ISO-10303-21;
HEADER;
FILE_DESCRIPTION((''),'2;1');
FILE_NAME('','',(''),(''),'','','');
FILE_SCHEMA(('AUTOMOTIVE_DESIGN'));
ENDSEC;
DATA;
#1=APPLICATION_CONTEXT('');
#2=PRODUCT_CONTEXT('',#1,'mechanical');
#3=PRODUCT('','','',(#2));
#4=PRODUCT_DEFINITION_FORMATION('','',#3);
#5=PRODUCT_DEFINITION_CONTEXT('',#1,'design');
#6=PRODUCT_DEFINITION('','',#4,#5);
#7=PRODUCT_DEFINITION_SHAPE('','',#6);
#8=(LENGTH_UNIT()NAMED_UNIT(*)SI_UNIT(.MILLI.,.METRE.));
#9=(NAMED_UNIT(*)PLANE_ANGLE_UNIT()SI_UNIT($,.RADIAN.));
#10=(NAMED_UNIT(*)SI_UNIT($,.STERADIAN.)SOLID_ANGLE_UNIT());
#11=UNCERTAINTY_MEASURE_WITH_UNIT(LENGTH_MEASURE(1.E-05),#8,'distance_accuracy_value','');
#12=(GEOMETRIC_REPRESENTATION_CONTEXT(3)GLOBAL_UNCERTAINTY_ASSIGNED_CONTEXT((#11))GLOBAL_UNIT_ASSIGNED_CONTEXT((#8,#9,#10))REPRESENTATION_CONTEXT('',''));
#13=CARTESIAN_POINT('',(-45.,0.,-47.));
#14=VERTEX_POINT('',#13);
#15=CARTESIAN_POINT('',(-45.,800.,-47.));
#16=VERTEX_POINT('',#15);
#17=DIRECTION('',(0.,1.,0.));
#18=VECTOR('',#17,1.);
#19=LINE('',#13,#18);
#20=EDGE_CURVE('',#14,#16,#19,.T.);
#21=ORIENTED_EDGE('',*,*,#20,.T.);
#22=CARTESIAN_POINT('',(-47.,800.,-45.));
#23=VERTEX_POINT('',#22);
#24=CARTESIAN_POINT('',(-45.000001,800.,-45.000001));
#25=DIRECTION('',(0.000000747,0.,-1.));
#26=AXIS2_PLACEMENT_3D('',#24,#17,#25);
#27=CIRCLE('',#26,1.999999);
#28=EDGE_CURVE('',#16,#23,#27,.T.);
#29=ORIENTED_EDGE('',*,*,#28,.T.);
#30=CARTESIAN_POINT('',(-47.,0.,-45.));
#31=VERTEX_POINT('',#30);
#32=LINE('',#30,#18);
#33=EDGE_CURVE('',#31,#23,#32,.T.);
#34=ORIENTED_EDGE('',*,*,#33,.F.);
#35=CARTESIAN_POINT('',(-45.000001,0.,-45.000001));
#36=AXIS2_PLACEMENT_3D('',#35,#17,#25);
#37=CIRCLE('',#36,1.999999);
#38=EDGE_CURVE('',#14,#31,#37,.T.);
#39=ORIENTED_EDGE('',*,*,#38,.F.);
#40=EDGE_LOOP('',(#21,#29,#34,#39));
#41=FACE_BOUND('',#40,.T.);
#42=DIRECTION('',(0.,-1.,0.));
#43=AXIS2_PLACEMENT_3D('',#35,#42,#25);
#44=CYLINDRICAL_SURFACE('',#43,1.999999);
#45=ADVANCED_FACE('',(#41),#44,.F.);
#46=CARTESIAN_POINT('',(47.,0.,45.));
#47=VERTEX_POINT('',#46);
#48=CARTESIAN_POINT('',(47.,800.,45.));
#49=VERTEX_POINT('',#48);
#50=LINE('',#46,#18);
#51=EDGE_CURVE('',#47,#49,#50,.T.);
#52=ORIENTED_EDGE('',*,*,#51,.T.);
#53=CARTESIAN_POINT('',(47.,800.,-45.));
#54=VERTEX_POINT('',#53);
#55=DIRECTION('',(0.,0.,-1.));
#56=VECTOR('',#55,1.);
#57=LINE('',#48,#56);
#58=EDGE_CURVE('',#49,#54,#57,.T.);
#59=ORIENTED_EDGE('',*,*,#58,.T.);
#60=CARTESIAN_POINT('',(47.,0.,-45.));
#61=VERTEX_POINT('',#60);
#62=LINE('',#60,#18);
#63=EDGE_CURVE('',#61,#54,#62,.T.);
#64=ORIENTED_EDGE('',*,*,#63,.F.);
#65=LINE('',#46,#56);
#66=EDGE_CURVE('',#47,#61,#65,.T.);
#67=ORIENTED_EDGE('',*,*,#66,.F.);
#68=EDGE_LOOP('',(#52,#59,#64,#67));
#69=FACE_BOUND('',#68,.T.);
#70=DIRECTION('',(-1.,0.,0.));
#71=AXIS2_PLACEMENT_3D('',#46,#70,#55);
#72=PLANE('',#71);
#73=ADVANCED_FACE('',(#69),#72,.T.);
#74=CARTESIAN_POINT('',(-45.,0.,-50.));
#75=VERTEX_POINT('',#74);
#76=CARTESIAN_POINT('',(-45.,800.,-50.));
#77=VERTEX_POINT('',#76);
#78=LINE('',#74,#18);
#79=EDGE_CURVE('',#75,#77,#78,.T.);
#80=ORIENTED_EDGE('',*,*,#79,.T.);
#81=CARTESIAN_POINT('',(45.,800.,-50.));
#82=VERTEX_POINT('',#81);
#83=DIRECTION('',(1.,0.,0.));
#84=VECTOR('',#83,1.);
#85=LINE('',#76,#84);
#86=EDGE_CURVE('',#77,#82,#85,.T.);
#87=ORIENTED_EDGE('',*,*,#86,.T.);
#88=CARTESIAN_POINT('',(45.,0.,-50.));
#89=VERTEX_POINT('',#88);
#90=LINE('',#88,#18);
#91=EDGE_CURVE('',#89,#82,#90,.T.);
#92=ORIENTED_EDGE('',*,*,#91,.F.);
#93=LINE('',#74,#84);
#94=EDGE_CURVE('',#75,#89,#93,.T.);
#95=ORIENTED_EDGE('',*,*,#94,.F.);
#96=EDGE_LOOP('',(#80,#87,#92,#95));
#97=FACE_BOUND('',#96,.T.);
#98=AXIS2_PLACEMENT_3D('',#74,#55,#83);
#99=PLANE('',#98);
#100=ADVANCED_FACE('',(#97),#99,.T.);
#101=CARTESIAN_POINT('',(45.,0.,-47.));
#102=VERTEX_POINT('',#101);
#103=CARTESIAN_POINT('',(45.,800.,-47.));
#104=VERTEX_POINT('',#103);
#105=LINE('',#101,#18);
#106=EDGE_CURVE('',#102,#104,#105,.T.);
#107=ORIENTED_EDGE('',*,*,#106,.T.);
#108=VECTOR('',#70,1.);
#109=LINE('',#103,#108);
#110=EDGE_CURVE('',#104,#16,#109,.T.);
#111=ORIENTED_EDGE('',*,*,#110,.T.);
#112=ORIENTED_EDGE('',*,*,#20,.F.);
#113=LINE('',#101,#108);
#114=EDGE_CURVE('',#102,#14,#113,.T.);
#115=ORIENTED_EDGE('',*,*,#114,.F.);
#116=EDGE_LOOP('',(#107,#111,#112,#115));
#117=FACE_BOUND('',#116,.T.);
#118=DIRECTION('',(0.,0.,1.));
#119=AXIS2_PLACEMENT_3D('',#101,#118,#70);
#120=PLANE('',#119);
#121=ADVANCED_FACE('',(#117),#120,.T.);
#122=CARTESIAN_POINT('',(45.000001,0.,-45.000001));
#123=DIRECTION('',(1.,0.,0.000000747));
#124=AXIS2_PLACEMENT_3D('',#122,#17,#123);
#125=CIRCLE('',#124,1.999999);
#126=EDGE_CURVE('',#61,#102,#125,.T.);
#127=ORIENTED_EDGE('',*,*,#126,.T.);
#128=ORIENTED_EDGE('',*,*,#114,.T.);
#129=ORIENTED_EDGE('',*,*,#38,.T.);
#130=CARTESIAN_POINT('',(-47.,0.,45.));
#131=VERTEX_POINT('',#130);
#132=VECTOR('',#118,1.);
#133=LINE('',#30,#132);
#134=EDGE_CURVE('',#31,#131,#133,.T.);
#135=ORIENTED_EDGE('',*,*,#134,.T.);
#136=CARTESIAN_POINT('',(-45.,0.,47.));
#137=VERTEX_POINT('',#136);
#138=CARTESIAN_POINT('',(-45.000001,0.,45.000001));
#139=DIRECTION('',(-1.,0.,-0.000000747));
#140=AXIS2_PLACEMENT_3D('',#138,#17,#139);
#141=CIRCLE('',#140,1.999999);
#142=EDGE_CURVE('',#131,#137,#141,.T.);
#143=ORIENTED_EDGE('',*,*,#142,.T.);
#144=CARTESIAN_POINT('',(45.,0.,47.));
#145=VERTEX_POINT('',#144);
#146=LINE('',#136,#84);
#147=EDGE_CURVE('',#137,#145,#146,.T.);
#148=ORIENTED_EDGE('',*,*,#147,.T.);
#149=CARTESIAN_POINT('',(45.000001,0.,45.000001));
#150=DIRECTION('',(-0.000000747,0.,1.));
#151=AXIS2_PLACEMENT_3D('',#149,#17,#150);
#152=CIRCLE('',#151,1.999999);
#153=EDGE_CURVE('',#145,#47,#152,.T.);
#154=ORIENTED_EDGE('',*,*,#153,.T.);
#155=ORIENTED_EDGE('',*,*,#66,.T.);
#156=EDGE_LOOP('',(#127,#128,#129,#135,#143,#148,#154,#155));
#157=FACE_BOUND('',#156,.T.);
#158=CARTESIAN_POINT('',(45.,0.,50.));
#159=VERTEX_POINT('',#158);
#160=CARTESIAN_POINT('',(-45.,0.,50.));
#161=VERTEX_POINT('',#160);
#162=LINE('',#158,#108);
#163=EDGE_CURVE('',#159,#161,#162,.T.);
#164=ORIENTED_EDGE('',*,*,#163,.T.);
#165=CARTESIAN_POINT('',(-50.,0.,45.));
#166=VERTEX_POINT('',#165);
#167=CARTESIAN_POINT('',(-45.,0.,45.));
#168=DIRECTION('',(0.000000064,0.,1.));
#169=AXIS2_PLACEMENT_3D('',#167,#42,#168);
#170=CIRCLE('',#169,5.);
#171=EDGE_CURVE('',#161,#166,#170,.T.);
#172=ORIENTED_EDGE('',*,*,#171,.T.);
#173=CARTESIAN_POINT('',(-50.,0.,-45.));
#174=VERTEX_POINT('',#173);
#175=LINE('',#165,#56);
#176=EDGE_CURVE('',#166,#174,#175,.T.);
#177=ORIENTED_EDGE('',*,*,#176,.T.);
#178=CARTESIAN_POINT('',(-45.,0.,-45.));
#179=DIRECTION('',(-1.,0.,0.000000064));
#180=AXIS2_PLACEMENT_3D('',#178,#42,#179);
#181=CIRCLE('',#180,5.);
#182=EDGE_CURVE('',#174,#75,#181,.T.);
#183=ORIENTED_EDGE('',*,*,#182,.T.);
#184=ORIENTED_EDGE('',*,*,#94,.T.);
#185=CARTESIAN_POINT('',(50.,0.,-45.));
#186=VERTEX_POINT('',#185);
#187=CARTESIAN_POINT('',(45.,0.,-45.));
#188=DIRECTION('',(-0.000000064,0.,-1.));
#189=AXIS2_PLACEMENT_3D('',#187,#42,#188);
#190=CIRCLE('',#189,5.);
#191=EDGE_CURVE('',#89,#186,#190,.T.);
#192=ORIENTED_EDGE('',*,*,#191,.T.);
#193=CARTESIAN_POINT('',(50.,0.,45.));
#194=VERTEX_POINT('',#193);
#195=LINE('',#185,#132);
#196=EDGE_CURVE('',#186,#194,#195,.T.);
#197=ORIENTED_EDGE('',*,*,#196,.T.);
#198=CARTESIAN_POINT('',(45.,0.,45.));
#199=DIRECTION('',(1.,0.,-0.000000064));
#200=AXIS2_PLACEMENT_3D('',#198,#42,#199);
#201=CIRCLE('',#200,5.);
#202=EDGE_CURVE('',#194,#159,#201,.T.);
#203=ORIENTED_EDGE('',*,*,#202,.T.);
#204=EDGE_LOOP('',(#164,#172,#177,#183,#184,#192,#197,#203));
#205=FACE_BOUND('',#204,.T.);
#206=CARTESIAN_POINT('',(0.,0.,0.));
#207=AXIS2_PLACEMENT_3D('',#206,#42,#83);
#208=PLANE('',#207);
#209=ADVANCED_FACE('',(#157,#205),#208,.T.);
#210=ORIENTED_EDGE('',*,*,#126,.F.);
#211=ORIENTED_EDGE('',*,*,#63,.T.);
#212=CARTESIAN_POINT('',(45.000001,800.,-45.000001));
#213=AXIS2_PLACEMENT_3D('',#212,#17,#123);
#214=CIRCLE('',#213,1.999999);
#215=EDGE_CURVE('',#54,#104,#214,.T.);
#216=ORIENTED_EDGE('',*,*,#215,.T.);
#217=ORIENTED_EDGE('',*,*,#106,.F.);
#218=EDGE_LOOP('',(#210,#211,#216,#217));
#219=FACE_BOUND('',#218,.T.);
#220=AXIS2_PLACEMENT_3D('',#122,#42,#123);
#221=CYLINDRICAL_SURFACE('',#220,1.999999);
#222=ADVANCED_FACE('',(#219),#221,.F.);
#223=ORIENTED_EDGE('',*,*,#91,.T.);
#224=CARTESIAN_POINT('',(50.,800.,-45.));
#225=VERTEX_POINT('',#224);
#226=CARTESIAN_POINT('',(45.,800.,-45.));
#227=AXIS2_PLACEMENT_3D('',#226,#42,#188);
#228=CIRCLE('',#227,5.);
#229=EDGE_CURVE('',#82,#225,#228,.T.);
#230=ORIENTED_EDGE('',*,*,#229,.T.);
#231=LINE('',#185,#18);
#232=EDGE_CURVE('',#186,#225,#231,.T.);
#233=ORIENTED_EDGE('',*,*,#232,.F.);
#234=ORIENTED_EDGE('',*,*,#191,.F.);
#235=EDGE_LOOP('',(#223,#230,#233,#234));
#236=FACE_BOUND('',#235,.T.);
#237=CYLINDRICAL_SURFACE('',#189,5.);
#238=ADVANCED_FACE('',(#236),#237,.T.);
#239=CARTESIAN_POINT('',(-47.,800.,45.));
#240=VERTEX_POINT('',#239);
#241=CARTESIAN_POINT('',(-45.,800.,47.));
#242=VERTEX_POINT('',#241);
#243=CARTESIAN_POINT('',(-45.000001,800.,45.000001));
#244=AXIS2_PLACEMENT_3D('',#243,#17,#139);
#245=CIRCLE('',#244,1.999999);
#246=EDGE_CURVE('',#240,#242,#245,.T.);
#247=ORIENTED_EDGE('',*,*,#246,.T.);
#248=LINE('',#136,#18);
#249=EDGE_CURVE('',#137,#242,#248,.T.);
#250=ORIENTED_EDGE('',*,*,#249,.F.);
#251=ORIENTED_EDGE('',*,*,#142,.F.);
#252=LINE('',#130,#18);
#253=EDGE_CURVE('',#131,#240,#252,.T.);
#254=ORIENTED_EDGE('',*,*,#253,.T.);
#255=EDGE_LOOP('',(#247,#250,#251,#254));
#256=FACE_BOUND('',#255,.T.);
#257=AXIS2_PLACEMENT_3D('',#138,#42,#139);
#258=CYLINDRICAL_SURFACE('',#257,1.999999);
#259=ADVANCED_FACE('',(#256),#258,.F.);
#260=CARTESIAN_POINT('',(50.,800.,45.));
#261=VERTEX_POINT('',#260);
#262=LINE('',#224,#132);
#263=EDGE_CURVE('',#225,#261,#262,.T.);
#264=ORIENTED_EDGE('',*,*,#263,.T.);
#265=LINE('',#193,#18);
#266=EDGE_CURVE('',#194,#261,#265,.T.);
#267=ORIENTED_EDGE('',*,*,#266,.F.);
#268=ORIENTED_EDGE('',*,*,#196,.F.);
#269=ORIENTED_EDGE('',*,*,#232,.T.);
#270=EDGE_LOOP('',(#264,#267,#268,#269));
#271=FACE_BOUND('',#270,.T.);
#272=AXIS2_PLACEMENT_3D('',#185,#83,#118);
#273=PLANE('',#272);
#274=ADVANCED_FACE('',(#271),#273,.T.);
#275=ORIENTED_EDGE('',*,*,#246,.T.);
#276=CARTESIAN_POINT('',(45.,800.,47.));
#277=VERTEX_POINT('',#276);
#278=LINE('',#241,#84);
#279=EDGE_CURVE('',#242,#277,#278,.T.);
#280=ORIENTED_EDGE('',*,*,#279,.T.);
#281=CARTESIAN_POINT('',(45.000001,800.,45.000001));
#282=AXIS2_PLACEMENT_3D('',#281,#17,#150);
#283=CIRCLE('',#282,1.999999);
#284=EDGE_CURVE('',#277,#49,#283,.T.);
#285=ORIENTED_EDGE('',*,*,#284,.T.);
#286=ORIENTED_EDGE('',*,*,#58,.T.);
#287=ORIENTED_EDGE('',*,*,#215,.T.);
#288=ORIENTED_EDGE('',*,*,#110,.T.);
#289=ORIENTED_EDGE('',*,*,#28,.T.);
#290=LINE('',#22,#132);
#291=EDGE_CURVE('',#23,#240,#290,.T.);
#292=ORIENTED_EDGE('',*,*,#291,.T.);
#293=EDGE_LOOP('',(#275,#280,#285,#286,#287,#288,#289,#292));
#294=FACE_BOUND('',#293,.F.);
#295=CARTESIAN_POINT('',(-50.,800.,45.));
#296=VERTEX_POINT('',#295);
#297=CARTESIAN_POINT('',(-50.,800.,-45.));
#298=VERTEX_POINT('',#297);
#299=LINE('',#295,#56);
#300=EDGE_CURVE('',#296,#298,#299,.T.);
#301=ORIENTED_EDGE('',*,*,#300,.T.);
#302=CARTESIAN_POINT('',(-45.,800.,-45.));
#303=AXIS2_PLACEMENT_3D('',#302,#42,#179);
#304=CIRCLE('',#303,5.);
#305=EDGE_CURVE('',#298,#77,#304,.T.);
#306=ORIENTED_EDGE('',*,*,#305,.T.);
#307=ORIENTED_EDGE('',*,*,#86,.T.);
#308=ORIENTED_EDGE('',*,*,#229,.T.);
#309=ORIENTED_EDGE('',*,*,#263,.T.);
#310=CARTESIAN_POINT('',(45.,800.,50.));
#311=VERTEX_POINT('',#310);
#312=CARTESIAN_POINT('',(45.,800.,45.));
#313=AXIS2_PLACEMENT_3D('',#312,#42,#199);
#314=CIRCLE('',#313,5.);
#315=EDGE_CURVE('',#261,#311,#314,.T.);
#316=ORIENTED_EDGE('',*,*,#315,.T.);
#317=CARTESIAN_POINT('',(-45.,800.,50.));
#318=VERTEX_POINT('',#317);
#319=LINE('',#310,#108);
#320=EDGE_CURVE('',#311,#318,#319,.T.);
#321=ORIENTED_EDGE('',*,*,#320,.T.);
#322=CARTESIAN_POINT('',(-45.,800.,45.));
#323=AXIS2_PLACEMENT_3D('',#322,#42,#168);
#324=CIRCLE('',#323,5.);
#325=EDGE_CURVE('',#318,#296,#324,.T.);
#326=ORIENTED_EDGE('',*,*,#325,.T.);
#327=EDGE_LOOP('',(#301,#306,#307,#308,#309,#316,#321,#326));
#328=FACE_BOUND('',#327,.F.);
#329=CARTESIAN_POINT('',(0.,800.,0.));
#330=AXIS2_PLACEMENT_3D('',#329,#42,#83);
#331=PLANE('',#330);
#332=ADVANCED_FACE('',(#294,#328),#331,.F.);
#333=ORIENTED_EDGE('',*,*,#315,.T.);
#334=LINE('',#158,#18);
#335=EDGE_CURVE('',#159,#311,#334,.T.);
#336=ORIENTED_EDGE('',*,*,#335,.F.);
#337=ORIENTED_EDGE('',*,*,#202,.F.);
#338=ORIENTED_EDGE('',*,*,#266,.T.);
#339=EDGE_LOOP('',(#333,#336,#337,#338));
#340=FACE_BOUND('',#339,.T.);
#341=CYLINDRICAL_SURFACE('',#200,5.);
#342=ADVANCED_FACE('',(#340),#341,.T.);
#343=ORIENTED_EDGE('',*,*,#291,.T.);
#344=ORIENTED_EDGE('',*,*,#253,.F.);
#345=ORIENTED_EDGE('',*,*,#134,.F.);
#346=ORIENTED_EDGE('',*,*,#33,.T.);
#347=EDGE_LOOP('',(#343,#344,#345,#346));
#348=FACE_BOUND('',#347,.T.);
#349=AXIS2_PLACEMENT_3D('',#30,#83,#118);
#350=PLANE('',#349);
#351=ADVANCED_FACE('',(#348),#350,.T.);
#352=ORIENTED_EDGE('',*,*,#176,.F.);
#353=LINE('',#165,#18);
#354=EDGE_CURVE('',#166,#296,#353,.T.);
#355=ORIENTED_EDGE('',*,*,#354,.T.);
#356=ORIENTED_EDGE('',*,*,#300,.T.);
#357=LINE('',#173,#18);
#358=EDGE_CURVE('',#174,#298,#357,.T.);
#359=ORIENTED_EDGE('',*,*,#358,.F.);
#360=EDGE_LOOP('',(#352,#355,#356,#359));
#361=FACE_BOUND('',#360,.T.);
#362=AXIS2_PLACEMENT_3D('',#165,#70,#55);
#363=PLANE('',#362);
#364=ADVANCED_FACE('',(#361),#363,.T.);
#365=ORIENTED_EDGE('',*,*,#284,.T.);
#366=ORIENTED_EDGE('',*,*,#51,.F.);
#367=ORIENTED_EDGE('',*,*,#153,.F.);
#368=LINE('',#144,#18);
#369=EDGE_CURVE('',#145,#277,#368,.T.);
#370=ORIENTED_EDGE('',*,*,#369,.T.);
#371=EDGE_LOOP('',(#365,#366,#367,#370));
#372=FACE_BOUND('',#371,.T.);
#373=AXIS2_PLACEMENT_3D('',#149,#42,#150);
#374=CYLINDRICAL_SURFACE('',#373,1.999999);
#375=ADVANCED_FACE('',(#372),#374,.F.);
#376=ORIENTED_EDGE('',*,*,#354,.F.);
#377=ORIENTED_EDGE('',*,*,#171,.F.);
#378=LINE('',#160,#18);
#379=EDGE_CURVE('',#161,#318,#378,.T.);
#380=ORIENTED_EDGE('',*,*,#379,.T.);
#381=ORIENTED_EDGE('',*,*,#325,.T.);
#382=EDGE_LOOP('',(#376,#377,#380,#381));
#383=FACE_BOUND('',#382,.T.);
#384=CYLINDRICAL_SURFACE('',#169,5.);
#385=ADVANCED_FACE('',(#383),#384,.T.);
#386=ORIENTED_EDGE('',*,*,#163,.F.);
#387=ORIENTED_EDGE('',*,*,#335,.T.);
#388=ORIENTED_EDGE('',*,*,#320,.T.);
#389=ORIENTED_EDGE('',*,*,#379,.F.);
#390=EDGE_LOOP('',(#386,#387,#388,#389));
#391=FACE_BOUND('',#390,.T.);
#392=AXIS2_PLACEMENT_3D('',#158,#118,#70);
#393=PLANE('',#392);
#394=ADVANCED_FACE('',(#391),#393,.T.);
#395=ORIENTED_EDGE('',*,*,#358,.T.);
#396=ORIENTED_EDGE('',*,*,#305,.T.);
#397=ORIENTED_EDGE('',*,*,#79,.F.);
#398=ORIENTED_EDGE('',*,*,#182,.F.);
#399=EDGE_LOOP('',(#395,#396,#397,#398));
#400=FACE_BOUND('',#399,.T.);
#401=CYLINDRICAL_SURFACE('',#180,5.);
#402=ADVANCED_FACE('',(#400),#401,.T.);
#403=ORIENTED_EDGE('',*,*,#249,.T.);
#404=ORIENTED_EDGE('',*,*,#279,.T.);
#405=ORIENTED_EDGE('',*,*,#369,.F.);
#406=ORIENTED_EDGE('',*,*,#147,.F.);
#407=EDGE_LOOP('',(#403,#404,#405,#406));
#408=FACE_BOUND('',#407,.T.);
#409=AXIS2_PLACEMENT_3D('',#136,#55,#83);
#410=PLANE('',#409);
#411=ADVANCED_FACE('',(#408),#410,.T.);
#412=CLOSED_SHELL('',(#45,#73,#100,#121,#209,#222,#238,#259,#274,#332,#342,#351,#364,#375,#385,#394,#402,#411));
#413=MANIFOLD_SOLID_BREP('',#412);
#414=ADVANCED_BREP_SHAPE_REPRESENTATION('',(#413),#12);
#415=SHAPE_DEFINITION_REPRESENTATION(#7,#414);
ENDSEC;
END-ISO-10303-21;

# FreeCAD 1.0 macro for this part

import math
import FreeCAD as App
import Part
import Sketcher
Q = App.Units.Quantity

doc = App.newDocument("Part")
params = doc.addObject("Spreadsheet::Sheet", "Params")
for row, (alias, value) in enumerate([
    ("sketch1_radius", "5 mm"),
    ("sketch1_radius2", "1.999999 mm"),
    ("sketch1_width", "90 mm"),
    ("pad1_length", "800 mm"),
], start=1):
    params.set(f"A{row}", alias)
    params.set(f"B{row}", "=" + value)
    params.setAlias(f"B{row}", alias)

body = doc.addObject("PartDesign::Body", "Body")

# Sketch on XZ plane
sketch1 = doc.addObject("Sketcher::SketchObject", "Sketch")
body.addObject(sketch1)
sketch1.AttachmentSupport = (doc.XZ_Plane, [""])
sketch1.MapMode = "FlatFace"
sketch1.addGeometry([
    Part.ArcOfCircle(Part.Circle(App.Vector(45, 45, 0), App.Vector(0, 0, 1), 5), math.radians(0), math.radians(90)),  # 0
    Part.LineSegment(App.Vector(45, 50, 0), App.Vector(-45, 50, 0)),  # 1
    Part.ArcOfCircle(Part.Circle(App.Vector(-45, 45, 0), App.Vector(0, 0, 1), 5), math.radians(90), math.radians(180)),  # 2
    Part.LineSegment(App.Vector(-50, 45, 0), App.Vector(-50, -45, 0)),  # 3
    Part.ArcOfCircle(Part.Circle(App.Vector(-45, -45, 0), App.Vector(0, 0, 1), 5), math.radians(180), math.radians(270)),  # 4
    Part.LineSegment(App.Vector(-45, -50, 0), App.Vector(45, -50, 0)),  # 5
    Part.ArcOfCircle(Part.Circle(App.Vector(45, -45, 0), App.Vector(0, 0, 1), 5), math.radians(-90), math.radians(0)),  # 6
    Part.LineSegment(App.Vector(50, -45, 0), App.Vector(50, 45, 0)),  # 7
    Part.LineSegment(App.Vector(-47, -45, 0), App.Vector(-47, 45, 0)),  # 8
    Part.ArcOfCircle(Part.Circle(App.Vector(-45, 45, 0), App.Vector(0, 0, 1), 2), math.radians(90), math.radians(180)),  # 9
    Part.LineSegment(App.Vector(-45, 47, 0), App.Vector(45, 47, 0)),  # 10
    Part.ArcOfCircle(Part.Circle(App.Vector(45, 45, 0), App.Vector(0, 0, 1), 2), math.radians(0), math.radians(90)),  # 11
    Part.LineSegment(App.Vector(47, 45, 0), App.Vector(47, -45, 0)),  # 12
    Part.ArcOfCircle(Part.Circle(App.Vector(45, -45, 0), App.Vector(0, 0, 1), 2), math.radians(-90), math.radians(0)),  # 13
    Part.LineSegment(App.Vector(45, -47, 0), App.Vector(-45, -47, 0)),  # 14
    Part.ArcOfCircle(Part.Circle(App.Vector(-45, -45, 0), App.Vector(0, 0, 1), 2), math.radians(180), math.radians(270)),  # 15
], False)
sketch1.addConstraint([
    Sketcher.Constraint("Tangent", 0, 2, 1, 1),
    Sketcher.Constraint("Tangent", 1, 2, 2, 1),
    Sketcher.Constraint("Tangent", 2, 2, 3, 1),
    Sketcher.Constraint("Tangent", 3, 2, 4, 1),
    Sketcher.Constraint("Tangent", 4, 2, 5, 1),
    Sketcher.Constraint("Tangent", 5, 2, 6, 1),
    Sketcher.Constraint("Tangent", 6, 2, 7, 1),
    Sketcher.Constraint("Tangent", 7, 2, 0, 1),
    Sketcher.Constraint("Tangent", 8, 2, 9, 2),
    Sketcher.Constraint("Tangent", 9, 1, 10, 1),
    Sketcher.Constraint("Tangent", 10, 2, 11, 2),
    Sketcher.Constraint("Tangent", 11, 1, 12, 1),
    Sketcher.Constraint("Tangent", 12, 2, 13, 2),
    Sketcher.Constraint("Tangent", 13, 1, 14, 1),
    Sketcher.Constraint("Tangent", 14, 2, 15, 2),
    Sketcher.Constraint("Tangent", 15, 1, 8, 1),
    Sketcher.Constraint("Horizontal", 1),
    Sketcher.Constraint("Vertical", 3),
    Sketcher.Constraint("Horizontal", 5),
    Sketcher.Constraint("Vertical", 7),
    Sketcher.Constraint("Vertical", 8),
    Sketcher.Constraint("Horizontal", 10),
    Sketcher.Constraint("Vertical", 12),
    Sketcher.Constraint("Horizontal", 14),
    Sketcher.Constraint("Coincident", 9, 3, 2, 3),
    Sketcher.Constraint("Coincident", 11, 3, 0, 3),
    Sketcher.Constraint("Coincident", 13, 3, 6, 3),
    Sketcher.Constraint("Equal", 0, 2),
    Sketcher.Constraint("Equal", 2, 4),
    Sketcher.Constraint("Equal", 4, 6),
    Sketcher.Constraint("Equal", 13, 15),
    Sketcher.Constraint("Symmetric", 0, 3, 4, 3, -1, 1),
    Sketcher.Constraint("Equal", 14, 3),
    Sketcher.Constraint("Radius", 0, Q("5 mm")),
    Sketcher.Constraint("Radius", 9, Q("1.999999 mm")),
    Sketcher.Constraint("DistanceX", 1, 2, 1, 1, Q("90 mm")),
])
sketch1.setExpression("Constraints[33]", "Params.sketch1_radius")
sketch1.setExpression("Constraints[34]", "Params.sketch1_radius2")
sketch1.setExpression("Constraints[35]", "Params.sketch1_width")
pad1 = doc.addObject("PartDesign::Pad", "Pad")
body.addObject(pad1)
pad1.Profile = sketch1
pad1.setExpression("Length", "Params.pad1_length")
pad1.Reversed = True

doc.recompute()
